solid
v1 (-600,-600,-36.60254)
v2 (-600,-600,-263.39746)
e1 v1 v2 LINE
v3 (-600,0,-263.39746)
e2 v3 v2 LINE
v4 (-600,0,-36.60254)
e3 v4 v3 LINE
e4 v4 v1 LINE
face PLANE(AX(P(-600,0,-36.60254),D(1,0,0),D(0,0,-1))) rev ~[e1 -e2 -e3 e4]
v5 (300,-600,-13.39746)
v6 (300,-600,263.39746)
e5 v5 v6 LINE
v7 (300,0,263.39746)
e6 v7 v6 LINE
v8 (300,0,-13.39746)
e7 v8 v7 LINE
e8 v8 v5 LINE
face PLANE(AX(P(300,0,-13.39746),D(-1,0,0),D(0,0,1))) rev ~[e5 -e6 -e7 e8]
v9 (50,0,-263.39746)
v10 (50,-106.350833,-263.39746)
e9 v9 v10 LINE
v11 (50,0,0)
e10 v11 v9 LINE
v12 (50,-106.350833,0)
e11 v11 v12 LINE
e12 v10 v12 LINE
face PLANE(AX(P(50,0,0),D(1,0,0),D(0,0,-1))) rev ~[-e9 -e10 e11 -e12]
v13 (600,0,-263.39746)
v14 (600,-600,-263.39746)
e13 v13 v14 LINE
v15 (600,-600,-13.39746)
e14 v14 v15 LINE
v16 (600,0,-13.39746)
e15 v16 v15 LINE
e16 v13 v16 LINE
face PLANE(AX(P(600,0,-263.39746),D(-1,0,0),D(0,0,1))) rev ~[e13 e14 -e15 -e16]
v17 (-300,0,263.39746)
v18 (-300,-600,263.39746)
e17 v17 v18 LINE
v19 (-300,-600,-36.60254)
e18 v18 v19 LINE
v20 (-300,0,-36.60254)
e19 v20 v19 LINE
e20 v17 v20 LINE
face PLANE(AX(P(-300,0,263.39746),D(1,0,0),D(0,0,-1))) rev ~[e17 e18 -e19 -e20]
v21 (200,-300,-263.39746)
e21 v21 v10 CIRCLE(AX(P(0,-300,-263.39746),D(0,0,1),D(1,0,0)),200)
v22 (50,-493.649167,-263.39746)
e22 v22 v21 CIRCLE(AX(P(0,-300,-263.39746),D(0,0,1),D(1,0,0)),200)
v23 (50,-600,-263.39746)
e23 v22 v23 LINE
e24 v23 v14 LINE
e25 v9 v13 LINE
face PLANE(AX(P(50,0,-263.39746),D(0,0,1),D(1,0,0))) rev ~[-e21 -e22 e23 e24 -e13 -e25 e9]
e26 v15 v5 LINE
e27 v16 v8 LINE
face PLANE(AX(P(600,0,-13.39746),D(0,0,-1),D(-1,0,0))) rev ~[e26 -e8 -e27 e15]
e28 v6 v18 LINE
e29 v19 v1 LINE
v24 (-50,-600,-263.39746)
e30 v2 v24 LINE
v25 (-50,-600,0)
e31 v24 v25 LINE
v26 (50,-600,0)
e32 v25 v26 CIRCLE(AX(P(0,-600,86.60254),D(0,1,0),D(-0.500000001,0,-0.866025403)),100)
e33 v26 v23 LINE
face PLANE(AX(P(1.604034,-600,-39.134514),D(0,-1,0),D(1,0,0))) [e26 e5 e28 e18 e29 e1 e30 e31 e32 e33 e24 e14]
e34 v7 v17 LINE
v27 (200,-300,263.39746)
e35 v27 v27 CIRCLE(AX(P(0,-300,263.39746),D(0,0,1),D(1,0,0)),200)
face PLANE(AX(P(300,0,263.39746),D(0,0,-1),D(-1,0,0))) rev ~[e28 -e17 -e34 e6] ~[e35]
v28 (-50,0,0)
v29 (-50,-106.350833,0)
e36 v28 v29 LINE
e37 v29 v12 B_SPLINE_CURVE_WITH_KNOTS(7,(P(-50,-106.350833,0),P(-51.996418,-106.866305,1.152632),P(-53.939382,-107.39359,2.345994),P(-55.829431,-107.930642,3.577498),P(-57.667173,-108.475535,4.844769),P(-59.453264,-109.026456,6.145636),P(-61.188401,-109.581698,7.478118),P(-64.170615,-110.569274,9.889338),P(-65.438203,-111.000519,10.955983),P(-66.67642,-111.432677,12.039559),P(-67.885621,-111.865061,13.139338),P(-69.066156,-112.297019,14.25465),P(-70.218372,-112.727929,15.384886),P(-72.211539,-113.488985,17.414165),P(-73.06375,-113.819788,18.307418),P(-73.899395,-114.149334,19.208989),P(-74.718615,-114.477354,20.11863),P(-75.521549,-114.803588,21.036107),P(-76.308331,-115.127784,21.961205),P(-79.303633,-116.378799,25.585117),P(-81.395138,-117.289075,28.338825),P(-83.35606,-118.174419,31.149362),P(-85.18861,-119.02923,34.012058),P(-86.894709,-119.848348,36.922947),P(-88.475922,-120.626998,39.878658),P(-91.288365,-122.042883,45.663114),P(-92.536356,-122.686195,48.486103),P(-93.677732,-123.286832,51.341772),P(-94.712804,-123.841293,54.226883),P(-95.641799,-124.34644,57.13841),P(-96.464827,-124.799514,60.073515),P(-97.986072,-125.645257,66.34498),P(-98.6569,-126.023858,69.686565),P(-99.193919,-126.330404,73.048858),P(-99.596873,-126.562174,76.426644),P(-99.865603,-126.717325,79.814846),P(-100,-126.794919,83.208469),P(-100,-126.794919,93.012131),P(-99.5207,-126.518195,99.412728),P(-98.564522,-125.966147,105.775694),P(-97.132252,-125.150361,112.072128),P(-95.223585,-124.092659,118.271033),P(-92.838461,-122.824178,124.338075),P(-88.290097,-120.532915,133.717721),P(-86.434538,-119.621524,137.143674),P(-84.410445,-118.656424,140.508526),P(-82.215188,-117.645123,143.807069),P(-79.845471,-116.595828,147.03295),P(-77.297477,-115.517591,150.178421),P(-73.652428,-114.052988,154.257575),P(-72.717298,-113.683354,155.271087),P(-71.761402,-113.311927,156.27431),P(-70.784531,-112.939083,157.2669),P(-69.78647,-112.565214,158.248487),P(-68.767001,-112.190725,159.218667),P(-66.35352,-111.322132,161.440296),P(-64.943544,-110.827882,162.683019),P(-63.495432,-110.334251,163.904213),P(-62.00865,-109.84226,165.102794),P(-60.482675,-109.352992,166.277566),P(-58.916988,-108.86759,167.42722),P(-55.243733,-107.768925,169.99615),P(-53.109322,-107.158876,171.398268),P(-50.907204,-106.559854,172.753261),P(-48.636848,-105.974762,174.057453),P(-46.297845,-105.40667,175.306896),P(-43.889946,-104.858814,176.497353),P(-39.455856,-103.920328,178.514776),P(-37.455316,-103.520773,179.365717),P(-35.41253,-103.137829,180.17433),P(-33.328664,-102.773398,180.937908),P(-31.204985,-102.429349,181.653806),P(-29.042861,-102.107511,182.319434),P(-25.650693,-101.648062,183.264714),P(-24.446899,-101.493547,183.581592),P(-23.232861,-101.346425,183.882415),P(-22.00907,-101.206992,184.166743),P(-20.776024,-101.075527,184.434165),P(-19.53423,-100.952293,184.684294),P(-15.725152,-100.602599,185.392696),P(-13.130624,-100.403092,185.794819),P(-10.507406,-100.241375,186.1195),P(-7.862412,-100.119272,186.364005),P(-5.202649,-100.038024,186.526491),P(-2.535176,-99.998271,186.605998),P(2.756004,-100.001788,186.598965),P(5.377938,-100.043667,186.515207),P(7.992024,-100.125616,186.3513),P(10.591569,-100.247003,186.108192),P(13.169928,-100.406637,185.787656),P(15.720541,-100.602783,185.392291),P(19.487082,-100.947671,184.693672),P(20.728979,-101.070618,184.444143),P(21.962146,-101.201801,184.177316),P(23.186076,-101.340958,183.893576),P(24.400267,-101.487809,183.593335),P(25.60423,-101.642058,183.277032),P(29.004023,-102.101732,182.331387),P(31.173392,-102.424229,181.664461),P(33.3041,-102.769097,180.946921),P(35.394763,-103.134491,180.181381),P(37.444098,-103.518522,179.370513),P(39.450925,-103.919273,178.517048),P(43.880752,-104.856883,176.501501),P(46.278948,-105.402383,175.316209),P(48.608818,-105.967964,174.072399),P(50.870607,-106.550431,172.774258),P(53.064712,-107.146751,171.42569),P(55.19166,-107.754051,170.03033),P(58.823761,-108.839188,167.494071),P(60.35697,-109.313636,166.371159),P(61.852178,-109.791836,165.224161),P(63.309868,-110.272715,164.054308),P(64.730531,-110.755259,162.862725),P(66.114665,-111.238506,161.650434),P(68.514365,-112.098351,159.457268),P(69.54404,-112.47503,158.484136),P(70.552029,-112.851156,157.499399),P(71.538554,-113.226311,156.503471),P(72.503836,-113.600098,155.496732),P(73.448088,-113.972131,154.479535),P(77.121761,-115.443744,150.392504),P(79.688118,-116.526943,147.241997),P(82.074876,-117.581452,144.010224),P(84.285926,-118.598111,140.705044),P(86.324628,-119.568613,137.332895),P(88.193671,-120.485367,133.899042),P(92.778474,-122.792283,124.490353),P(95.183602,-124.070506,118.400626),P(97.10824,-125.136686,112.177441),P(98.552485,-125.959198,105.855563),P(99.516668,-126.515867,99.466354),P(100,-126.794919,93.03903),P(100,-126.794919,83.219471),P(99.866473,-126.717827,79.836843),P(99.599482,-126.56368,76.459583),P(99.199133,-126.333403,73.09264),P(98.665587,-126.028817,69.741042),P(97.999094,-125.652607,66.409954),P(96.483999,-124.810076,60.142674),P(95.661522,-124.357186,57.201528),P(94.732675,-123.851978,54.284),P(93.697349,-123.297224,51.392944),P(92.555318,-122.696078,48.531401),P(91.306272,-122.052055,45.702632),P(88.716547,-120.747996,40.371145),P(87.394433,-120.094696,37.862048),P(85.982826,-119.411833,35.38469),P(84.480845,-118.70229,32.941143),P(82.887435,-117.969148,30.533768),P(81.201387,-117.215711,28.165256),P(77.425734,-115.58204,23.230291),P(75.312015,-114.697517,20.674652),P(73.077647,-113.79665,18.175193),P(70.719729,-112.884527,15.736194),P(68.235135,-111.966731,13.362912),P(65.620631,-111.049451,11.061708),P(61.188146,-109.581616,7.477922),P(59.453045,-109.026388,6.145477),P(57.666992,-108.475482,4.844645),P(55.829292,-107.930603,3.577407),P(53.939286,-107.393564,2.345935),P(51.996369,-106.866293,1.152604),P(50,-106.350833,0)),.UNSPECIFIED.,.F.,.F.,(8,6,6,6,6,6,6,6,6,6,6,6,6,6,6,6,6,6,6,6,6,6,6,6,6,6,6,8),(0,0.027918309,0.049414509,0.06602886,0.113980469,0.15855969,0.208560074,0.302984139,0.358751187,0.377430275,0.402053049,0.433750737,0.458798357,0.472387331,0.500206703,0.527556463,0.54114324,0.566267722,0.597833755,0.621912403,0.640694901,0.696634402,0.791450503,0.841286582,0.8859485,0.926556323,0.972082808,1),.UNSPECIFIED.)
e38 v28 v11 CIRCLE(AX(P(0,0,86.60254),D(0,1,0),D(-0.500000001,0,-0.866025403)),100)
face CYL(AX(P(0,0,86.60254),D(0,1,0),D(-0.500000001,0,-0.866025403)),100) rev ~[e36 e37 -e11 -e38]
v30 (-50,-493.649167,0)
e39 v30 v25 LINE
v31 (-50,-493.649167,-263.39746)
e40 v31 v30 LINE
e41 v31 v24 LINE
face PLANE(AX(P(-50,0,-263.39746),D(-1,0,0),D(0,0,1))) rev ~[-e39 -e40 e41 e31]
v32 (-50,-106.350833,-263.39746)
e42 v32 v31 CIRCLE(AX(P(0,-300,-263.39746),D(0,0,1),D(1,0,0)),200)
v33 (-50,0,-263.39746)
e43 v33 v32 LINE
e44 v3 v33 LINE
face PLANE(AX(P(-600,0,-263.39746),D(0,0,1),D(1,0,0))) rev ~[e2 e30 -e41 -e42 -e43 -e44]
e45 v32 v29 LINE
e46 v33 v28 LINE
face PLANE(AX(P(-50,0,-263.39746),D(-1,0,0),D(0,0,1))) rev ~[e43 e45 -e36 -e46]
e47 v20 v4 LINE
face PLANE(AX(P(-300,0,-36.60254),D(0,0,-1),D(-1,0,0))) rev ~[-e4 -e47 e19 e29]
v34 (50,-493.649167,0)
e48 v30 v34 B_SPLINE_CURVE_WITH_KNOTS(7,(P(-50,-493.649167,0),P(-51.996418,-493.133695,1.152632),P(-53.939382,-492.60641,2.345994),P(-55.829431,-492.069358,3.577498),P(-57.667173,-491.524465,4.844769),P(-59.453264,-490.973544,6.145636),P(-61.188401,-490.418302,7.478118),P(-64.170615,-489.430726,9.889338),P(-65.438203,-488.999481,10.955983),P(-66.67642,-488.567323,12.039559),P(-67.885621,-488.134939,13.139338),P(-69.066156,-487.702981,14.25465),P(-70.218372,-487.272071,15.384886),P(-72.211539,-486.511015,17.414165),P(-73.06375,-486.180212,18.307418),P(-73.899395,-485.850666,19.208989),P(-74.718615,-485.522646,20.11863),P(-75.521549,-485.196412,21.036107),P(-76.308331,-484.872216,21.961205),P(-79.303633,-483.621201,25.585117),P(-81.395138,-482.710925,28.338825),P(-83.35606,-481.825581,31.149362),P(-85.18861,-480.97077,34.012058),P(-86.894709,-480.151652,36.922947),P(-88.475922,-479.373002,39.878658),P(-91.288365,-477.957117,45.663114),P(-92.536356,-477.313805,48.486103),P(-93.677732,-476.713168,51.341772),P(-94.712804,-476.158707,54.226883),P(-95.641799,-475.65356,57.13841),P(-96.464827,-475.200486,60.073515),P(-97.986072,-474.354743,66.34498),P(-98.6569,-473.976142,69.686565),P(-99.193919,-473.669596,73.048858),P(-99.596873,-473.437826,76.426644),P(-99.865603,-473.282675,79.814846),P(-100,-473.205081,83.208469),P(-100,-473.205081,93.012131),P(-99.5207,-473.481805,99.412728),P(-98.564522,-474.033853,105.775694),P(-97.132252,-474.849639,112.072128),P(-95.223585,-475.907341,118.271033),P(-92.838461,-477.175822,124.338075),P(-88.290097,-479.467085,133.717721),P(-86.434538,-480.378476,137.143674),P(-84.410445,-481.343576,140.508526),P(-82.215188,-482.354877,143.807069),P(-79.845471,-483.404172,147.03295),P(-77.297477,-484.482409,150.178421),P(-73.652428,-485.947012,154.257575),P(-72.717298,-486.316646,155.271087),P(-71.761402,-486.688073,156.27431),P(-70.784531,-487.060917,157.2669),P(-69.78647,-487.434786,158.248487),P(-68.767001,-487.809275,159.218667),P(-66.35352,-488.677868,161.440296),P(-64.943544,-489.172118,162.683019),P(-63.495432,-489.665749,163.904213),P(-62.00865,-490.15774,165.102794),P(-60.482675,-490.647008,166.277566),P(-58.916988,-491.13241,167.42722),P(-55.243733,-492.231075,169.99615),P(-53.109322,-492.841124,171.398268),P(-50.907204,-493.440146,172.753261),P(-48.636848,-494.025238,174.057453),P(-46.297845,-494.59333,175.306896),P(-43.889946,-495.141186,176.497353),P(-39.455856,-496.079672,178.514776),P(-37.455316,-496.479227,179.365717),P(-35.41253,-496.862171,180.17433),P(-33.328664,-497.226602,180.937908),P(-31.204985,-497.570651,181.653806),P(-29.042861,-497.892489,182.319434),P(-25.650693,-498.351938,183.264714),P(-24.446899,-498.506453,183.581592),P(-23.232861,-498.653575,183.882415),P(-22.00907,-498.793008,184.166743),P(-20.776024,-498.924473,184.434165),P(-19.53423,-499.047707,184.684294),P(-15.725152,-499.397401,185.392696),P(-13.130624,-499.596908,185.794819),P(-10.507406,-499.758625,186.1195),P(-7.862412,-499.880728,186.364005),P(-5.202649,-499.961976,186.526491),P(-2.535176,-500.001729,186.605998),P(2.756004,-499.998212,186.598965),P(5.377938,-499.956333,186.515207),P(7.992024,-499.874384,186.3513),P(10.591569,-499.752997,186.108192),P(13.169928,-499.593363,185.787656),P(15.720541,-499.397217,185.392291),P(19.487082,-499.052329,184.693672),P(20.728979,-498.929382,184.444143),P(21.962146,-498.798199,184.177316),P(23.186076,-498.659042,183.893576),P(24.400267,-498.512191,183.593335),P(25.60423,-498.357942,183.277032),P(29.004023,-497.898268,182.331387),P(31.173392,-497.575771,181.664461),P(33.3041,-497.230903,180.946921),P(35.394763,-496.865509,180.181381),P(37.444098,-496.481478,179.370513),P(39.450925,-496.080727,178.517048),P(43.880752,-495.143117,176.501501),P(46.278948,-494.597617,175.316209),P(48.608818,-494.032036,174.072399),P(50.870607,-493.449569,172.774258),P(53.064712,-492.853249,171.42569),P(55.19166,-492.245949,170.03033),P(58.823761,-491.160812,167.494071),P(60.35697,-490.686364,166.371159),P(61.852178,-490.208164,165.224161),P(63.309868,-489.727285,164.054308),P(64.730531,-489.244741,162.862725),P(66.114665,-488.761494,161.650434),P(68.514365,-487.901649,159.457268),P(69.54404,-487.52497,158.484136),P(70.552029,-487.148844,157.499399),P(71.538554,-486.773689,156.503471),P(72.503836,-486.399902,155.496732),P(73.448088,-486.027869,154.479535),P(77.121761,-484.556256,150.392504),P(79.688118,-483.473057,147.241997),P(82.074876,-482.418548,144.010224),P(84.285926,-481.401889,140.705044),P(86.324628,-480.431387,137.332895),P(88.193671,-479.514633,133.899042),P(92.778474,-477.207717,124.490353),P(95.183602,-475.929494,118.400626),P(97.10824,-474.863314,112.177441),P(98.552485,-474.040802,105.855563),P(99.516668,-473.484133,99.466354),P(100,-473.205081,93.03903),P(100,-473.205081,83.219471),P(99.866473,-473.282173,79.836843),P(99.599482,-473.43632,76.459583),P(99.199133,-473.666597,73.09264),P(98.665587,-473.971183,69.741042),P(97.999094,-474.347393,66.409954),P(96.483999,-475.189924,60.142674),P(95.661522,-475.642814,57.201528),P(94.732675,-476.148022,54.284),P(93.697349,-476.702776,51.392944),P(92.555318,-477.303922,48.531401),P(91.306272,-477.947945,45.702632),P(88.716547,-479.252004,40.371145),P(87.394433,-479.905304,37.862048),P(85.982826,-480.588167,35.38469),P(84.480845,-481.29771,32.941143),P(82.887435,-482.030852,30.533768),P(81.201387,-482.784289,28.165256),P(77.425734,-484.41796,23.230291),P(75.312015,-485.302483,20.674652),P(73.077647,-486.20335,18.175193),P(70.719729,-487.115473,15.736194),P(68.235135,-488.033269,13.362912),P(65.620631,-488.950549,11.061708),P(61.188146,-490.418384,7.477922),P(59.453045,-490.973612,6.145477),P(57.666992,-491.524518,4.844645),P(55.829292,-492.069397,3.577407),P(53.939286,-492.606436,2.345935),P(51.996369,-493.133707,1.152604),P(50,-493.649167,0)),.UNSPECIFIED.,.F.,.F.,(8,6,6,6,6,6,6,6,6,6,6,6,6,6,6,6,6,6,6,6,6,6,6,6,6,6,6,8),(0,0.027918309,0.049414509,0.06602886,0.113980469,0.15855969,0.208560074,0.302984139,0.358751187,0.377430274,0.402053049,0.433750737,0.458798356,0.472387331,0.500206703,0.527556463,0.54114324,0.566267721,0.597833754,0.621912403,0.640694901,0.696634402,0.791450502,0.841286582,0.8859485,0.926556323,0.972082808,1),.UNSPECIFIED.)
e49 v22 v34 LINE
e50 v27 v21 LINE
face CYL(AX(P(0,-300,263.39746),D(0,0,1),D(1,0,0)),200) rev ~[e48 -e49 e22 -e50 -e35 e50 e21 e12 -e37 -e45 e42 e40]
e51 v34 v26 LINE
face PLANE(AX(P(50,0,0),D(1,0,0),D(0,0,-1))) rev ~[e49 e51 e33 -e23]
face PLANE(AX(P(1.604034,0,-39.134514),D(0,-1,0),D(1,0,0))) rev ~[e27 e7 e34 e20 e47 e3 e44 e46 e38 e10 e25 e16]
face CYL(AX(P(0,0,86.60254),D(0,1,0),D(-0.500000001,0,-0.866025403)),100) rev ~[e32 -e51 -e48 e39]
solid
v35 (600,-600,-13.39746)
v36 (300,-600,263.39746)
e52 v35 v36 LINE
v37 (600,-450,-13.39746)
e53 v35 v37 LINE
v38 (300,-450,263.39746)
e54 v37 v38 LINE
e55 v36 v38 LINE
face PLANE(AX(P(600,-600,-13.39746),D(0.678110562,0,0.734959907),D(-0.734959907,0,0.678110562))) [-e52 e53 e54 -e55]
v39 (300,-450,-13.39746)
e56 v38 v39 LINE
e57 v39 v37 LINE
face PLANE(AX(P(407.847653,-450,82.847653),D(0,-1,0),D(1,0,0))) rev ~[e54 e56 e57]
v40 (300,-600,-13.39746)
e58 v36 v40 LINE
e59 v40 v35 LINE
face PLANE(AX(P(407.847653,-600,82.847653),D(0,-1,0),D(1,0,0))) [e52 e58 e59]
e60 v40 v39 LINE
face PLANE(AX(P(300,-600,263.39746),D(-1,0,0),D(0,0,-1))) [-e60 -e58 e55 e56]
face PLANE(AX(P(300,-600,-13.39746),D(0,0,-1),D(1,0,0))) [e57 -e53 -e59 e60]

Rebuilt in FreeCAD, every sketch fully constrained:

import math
import FreeCAD as App
import Part
import Sketcher
Q = App.Units.Quantity

doc = App.newDocument("Part")
params = doc.addObject("Spreadsheet::Sheet", "Params")
for row, (alias, value) in enumerate([
    ("sketch1_radius", "100 mm"),
    ("sketch1_width", "600 mm"),
    ("sketch1_width2", "300 mm"),
    ("sketch1_width3", "550 mm"),
    ("sketch1_height", "250 mm"),
    ("pad1_length", "600 mm"),
    ("sketch2_diameter", "400 mm"),
    ("sketch3_width", "300 mm"),
    ("pad2_length", "150 mm"),
], start=1):
    params.set(f"A{row}", alias)
    params.set(f"B{row}", "=" + value)
    params.setAlias(f"B{row}", alias)

body = doc.addObject("PartDesign::Body", "Body")

sketch1 = body.newObject("Sketcher::SketchObject", "Sketch")
sketch1.AttachmentSupport = (doc.getObject("XZ_Plane"), [""])
sketch1.MapMode = "FlatFace"
sketch1.addGeometry(Part.LineSegment(App.Vector(300, -13.39746, 0), App.Vector(300, 263.39746, 0)), False)
sketch1.addGeometry(Part.LineSegment(App.Vector(300, 263.39746, 0), App.Vector(-300, 263.39746, 0)), False)
sketch1.addGeometry(Part.LineSegment(App.Vector(-300, 263.39746, 0), App.Vector(-300, -36.60254, 0)), False)
sketch1.addGeometry(Part.LineSegment(App.Vector(-300, -36.60254, 0), App.Vector(-600, -36.60254, 0)), False)
sketch1.addGeometry(Part.LineSegment(App.Vector(-600, -36.60254, 0), App.Vector(-600, -263.39746, 0)), False)
sketch1.addGeometry(Part.LineSegment(App.Vector(-600, -263.39746, 0), App.Vector(-50, -263.39746, 0)), False)
sketch1.addGeometry(Part.LineSegment(App.Vector(-50, -263.39746, 0), App.Vector(-50, 0, 0)), False)
sketch1.addGeometry(Part.ArcOfCircle(Part.Circle(App.Vector(0, 86.60254, 0), App.Vector(0, 0, 1), 100), math.radians(-60), math.radians(240)), False)
sketch1.addGeometry(Part.LineSegment(App.Vector(50, 0, 0), App.Vector(50, -263.39746, 0)), False)
sketch1.addGeometry(Part.LineSegment(App.Vector(50, -263.39746, 0), App.Vector(600, -263.39746, 0)), False)
sketch1.addGeometry(Part.LineSegment(App.Vector(600, -263.39746, 0), App.Vector(600, -13.39746, 0)), False)
sketch1.addGeometry(Part.LineSegment(App.Vector(600, -13.39746, 0), App.Vector(300, -13.39746, 0)), False)
sketch1.addConstraint(Sketcher.Constraint("Coincident", 0, 2, 1, 1))
sketch1.addConstraint(Sketcher.Constraint("Coincident", 1, 2, 2, 1))
sketch1.addConstraint(Sketcher.Constraint("Coincident", 2, 2, 3, 1))
sketch1.addConstraint(Sketcher.Constraint("Coincident", 3, 2, 4, 1))
sketch1.addConstraint(Sketcher.Constraint("Coincident", 4, 2, 5, 1))
sketch1.addConstraint(Sketcher.Constraint("Coincident", 5, 2, 6, 1))
sketch1.addConstraint(Sketcher.Constraint("Coincident", 6, 2, 7, 2))
sketch1.addConstraint(Sketcher.Constraint("Coincident", 7, 1, 8, 1))
sketch1.addConstraint(Sketcher.Constraint("Coincident", 8, 2, 9, 1))
sketch1.addConstraint(Sketcher.Constraint("Coincident", 9, 2, 10, 1))
sketch1.addConstraint(Sketcher.Constraint("Coincident", 10, 2, 11, 1))
sketch1.addConstraint(Sketcher.Constraint("Coincident", 11, 2, 0, 1))
sketch1.addConstraint(Sketcher.Constraint("Vertical", 0))
sketch1.addConstraint(Sketcher.Constraint("Horizontal", 1))
sketch1.addConstraint(Sketcher.Constraint("Vertical", 2))
sketch1.addConstraint(Sketcher.Constraint("Horizontal", 3))
sketch1.addConstraint(Sketcher.Constraint("Vertical", 4))
sketch1.addConstraint(Sketcher.Constraint("Horizontal", 5))
sketch1.addConstraint(Sketcher.Constraint("Vertical", 6))
sketch1.addConstraint(Sketcher.Constraint("Vertical", 8))
sketch1.addConstraint(Sketcher.Constraint("Horizontal", 9))
sketch1.addConstraint(Sketcher.Constraint("Vertical", 10))
sketch1.addConstraint(Sketcher.Constraint("Horizontal", 11))
sketch1.addConstraint(Sketcher.Constraint("Symmetric", 6, 2, 7, 1, -1, 1))
sketch1.addConstraint(Sketcher.Constraint("Symmetric", 4, 2, 9, 2, -2))
sketch1.addConstraint(Sketcher.Constraint("PointOnObject", 7, 3, -2))
sketch1.addConstraint(Sketcher.Constraint("Equal", 3, 11))
sketch1.addConstraint(Sketcher.Constraint("Equal", 11, 2))
sketch1.addConstraint(Sketcher.Constraint("Radius", 7, Q("100 mm")))
sketch1.addConstraint(Sketcher.Constraint("DistanceX", 1, 2, 1, 1, Q("600 mm")))
sketch1.addConstraint(Sketcher.Constraint("DistanceX", 3, 2, 3, 1, Q("300 mm")))
sketch1.addConstraint(Sketcher.Constraint("DistanceX", 5, 1, 5, 2, Q("550 mm")))
sketch1.addConstraint(Sketcher.Constraint("DistanceY", 10, 1, 10, 2, Q("250 mm")))
sketch1.addConstraint(Sketcher.Constraint("DistanceY", 4, 2, 7, 3, Q("350 mm")))
sketch1.addConstraint(Sketcher.Constraint("DistanceY", 0, 1, 0, 2, Q("276.79492 mm")))
sketch1.setExpression("Constraints[28]", "Params.sketch1_radius")
sketch1.setExpression("Constraints[29]", "Params.sketch1_width")
sketch1.setExpression("Constraints[30]", "Params.sketch1_width2")
sketch1.setExpression("Constraints[31]", "Params.sketch1_width3")
sketch1.setExpression("Constraints[32]", "Params.sketch1_height")
pad1 = body.newObject("PartDesign::Pad", "Pad")
pad1.Profile = sketch1
pad1.setExpression("Length", "Params.pad1_length")

sketch2 = body.newObject("Sketcher::SketchObject", "Sketch001")
sketch2.AttachmentSupport = (doc.getObject("XY_Plane"), [""])
sketch2.MapMode = "FlatFace"
sketch2.AttachmentOffset = App.Placement(App.Vector(0, 0, 263.39746), App.Rotation())
sketch2.addGeometry(Part.Circle(App.Vector(0, -300, 0), App.Vector(0, 0, 1), 200), False)
sketch2.addConstraint(Sketcher.Constraint("PointOnObject", 0, 3, -2))
sketch2.addConstraint(Sketcher.Constraint("Diameter", 0, Q("400 mm")))
sketch2.addConstraint(Sketcher.Constraint("DistanceY", 0, 3, -1, 1, Q("300 mm")))
sketch2.setExpression("Constraints[1]", "Params.sketch2_diameter")
pocket1 = body.newObject("PartDesign::Pocket", "Pocket")
pocket1.Profile = sketch2
pocket1.Type = "ThroughAll"
body2 = doc.addObject("PartDesign::Body", "Body001")

sketch3 = body2.newObject("Sketcher::SketchObject", "Sketch002")
sketch3.AttachmentSupport = (doc.getObject("XZ_Plane001"), [""])
sketch3.MapMode = "FlatFace"
sketch3.AttachmentOffset = App.Placement(App.Vector(0, 0, 600), App.Rotation())
sketch3.addGeometry(Part.LineSegment(App.Vector(600, -13.39746, 0), App.Vector(300, 263.39746, 0)), False)
sketch3.addGeometry(Part.LineSegment(App.Vector(300, 263.39746, 0), App.Vector(300, -13.39746, 0)), False)
sketch3.addGeometry(Part.LineSegment(App.Vector(300, -13.39746, 0), App.Vector(600, -13.39746, 0)), False)
sketch3.addConstraint(Sketcher.Constraint("Coincident", 0, 2, 1, 1))
sketch3.addConstraint(Sketcher.Constraint("Coincident", 1, 2, 2, 1))
sketch3.addConstraint(Sketcher.Constraint("Coincident", 2, 2, 0, 1))
sketch3.addConstraint(Sketcher.Constraint("Vertical", 1))
sketch3.addConstraint(Sketcher.Constraint("Horizontal", 2))
sketch3.addConstraint(Sketcher.Constraint("DistanceX", 2, 1, 2, 2, Q("300 mm")))
sketch3.addConstraint(Sketcher.Constraint("DistanceX", -1, 1, 0, 2, Q("300 mm")))
sketch3.addConstraint(Sketcher.Constraint("DistanceY", 1, 2, 1, 1, Q("276.79492 mm")))
sketch3.addConstraint(Sketcher.Constraint("DistanceY", -1, 1, 0, 2, Q("263.39746 mm")))
sketch3.setExpression("Constraints[5]", "Params.sketch3_width")
pad2 = body2.newObject("PartDesign::Pad", "Pad001")
pad2.Profile = sketch3
pad2.setExpression("Length", "Params.pad2_length")
pad2.Reversed = True

doc.recompute()
